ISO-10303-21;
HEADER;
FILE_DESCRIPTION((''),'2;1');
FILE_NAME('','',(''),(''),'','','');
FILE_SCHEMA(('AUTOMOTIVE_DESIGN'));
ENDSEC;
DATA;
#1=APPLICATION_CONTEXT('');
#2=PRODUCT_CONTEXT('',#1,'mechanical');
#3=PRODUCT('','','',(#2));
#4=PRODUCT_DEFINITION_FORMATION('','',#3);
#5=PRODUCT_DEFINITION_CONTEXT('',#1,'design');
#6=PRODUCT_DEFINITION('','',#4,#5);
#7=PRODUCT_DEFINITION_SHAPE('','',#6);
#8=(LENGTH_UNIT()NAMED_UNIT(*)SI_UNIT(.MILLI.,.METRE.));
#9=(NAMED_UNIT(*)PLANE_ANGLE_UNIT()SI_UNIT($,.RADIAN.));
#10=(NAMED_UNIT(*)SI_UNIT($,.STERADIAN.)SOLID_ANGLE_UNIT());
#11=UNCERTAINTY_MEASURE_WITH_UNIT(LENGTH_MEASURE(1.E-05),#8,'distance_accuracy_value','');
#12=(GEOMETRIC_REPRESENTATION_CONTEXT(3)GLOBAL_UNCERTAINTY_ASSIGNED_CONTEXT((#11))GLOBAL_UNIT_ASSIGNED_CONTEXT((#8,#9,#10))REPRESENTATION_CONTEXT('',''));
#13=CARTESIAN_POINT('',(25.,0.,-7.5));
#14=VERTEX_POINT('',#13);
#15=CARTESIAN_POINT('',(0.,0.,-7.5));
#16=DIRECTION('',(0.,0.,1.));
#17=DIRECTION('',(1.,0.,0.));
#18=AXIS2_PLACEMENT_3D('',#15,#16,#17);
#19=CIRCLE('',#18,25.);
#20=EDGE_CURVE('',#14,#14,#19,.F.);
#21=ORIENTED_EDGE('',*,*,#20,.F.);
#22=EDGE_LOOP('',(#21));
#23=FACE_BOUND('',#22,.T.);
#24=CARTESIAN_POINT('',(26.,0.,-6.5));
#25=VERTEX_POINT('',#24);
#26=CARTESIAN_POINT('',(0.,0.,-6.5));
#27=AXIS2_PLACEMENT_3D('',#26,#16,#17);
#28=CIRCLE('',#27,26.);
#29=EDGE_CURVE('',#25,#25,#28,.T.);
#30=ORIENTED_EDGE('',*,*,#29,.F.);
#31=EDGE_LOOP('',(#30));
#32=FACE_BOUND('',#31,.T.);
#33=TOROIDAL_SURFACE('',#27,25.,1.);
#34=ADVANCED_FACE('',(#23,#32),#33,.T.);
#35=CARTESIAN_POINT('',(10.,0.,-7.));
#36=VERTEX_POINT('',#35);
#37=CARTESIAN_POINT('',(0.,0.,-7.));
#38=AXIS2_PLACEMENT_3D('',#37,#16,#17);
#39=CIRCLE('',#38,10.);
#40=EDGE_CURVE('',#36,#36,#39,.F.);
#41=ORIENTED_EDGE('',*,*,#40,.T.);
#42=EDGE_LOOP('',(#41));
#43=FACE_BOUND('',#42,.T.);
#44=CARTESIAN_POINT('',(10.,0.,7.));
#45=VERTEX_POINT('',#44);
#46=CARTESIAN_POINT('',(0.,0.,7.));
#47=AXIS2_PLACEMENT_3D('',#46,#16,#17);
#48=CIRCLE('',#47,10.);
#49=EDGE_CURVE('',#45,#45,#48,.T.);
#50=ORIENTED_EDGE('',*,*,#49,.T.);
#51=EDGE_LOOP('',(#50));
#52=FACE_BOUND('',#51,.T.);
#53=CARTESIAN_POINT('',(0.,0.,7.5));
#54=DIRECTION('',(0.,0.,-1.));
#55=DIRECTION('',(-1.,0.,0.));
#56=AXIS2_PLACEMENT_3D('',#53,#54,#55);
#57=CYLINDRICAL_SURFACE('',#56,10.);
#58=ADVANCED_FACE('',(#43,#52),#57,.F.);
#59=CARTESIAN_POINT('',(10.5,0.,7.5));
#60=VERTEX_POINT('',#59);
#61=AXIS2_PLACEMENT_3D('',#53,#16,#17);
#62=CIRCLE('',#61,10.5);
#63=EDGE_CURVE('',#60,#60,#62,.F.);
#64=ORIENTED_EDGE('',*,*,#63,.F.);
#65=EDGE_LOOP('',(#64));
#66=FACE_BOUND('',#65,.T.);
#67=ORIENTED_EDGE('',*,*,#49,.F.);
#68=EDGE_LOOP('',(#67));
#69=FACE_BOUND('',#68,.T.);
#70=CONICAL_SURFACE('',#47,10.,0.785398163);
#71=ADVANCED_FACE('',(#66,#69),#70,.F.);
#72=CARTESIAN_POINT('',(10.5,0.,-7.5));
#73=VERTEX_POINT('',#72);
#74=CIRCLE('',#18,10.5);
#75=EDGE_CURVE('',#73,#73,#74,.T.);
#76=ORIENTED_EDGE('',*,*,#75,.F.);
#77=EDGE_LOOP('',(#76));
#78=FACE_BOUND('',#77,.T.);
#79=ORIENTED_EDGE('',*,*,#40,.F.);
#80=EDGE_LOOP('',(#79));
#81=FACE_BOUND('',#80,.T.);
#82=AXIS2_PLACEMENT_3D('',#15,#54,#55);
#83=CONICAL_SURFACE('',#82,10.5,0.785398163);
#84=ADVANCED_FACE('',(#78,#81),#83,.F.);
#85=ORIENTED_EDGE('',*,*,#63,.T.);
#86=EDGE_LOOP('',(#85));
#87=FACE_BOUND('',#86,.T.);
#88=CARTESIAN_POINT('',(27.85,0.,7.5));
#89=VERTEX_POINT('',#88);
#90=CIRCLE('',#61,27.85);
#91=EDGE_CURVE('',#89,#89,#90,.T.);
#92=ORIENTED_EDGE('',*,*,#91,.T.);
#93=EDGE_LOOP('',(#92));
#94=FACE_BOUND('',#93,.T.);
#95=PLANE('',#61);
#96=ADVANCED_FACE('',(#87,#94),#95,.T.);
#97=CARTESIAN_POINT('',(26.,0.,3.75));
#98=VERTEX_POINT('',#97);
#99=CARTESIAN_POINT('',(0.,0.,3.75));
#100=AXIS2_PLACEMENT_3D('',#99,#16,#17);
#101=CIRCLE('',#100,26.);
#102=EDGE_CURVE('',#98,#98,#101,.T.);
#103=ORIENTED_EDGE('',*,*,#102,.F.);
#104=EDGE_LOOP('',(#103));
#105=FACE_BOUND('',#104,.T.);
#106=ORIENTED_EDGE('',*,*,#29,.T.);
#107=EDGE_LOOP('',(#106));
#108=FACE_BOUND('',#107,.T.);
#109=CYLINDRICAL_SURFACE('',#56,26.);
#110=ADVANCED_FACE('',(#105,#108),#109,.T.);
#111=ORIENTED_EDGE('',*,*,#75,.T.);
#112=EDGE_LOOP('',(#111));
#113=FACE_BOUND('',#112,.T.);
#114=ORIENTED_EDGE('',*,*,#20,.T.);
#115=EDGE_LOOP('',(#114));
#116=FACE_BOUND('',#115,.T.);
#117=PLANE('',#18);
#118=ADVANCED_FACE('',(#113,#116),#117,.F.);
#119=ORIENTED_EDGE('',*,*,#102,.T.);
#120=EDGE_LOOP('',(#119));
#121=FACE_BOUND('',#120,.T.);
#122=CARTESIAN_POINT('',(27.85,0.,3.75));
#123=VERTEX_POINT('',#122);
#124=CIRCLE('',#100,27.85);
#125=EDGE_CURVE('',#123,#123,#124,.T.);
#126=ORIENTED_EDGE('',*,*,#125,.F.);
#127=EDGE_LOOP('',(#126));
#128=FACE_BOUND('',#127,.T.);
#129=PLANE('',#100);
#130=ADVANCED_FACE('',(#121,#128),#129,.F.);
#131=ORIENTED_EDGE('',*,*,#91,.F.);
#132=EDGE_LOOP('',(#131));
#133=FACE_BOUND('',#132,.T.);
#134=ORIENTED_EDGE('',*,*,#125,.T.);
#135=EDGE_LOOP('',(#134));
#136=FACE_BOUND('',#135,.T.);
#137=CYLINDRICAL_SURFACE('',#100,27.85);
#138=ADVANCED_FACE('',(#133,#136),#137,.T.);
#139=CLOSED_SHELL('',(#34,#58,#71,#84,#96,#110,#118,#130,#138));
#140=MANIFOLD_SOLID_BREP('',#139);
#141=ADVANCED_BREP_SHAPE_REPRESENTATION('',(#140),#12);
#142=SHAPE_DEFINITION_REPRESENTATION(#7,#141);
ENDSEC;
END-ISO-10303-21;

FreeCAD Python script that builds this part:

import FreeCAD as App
import Part
import Sketcher


def edges_at(feature, points):
    """Names of the edges that pass closest to the given points."""
    edges = feature.Shape.Edges
    near = lambda p: min(range(len(edges)), key=lambda i: edges[i].distToShape(Part.Vertex(*p))[0])
    return sorted({f"Edge{near(p) + 1}" for p in points})

doc = App.newDocument("Part")
params = doc.addObject("Spreadsheet::Sheet", "Params")
for row, (alias, value) in enumerate([
    ("sketch1_diameter", "52 mm"),
    ("sketch1_diameter2", "20 mm"),
    ("pad1_length", "15 mm"),
    ("sketch2_diameter", "52 mm"),
    ("sketch2_diameter2", "55.7 mm"),
    ("pad2_length", "3.75 mm"),
    ("chamfer_size", "0.5 mm"),
    ("fillet_radius", "1 mm"),
], start=1):
    params.set(f"A{row}", alias)
    params.set(f"B{row}", "=" + value)
    params.setAlias(f"B{row}", alias)

body = doc.addObject("PartDesign::Body", "Body")

# Sketch on XY plane
sketch1 = body.newObject("Sketcher::SketchObject", "Sketch")
sketch1.AttachmentSupport = (doc.getObject("XY_Plane"), [""])
sketch1.MapMode = "FlatFace"
sketch1.addGeometry([
    Part.Circle(App.Vector(0, 0, 0), App.Vector(0, 0, 1), 26),
    Part.Circle(App.Vector(0, 0, 0), App.Vector(0, 0, 1), 10),
], False)
sketch1.addConstraint([
    Sketcher.Constraint("Coincident", 0, 3, -1, 1),
    Sketcher.Constraint("Coincident", 1, 3, -1, 1),
    Sketcher.Constraint("Diameter", 0, 52.0),
    Sketcher.Constraint("Diameter", 1, 20.0),
])
sketch1.setExpression("Constraints[2]", "Params.sketch1_diameter")
sketch1.setExpression("Constraints[3]", "Params.sketch1_diameter2")
pad1 = body.newObject("PartDesign::Pad", "Pad")
pad1.Profile = sketch1
pad1.setExpression("Length", "Params.pad1_length")
pad1.Midplane = True

# Sketch on XY plane
sketch2 = body.newObject("Sketcher::SketchObject", "Sketch001")
sketch2.AttachmentSupport = (doc.getObject("XY_Plane"), [""])
sketch2.MapMode = "FlatFace"
sketch2.AttachmentOffset = App.Placement(App.Vector(0, 0, 7.5), App.Rotation())
sketch2.addGeometry([
    Part.Circle(App.Vector(0, 0, 0), App.Vector(0, 0, 1), 28),
    Part.Circle(App.Vector(0, 0, 0), App.Vector(0, 0, 1), 26),
], False)
sketch2.addConstraint([
    Sketcher.Constraint("Coincident", 0, 3, -1, 1),
    Sketcher.Constraint("Coincident", 1, 3, -1, 1),
    Sketcher.Constraint("Diameter", 1, 52.0),
    Sketcher.Constraint("Diameter", 0, 55.7),
])
sketch2.setExpression("Constraints[2]", "Params.sketch2_diameter")
sketch2.setExpression("Constraints[3]", "Params.sketch2_diameter2")
pad2 = body.newObject("PartDesign::Pad", "Pad001")
pad2.Profile = sketch2
pad2.setExpression("Length", "Params.pad2_length")
pad2.Reversed = True
doc.recompute()

chamfer = body.newObject("PartDesign::Chamfer", "Chamfer")
chamfer.Base = (pad2, edges_at(pad2, [(-10, 0, -7.5), (-10, 0, 7.5)]))
chamfer.setExpression("Size", "Params.chamfer_size")
doc.recompute()

fillet = body.newObject("PartDesign::Fillet", "Fillet")
fillet.Base = (chamfer, edges_at(chamfer, [(-26, 0, -7.5)]))
fillet.setExpression("Radius", "Params.fillet_radius")

doc.recompute()
